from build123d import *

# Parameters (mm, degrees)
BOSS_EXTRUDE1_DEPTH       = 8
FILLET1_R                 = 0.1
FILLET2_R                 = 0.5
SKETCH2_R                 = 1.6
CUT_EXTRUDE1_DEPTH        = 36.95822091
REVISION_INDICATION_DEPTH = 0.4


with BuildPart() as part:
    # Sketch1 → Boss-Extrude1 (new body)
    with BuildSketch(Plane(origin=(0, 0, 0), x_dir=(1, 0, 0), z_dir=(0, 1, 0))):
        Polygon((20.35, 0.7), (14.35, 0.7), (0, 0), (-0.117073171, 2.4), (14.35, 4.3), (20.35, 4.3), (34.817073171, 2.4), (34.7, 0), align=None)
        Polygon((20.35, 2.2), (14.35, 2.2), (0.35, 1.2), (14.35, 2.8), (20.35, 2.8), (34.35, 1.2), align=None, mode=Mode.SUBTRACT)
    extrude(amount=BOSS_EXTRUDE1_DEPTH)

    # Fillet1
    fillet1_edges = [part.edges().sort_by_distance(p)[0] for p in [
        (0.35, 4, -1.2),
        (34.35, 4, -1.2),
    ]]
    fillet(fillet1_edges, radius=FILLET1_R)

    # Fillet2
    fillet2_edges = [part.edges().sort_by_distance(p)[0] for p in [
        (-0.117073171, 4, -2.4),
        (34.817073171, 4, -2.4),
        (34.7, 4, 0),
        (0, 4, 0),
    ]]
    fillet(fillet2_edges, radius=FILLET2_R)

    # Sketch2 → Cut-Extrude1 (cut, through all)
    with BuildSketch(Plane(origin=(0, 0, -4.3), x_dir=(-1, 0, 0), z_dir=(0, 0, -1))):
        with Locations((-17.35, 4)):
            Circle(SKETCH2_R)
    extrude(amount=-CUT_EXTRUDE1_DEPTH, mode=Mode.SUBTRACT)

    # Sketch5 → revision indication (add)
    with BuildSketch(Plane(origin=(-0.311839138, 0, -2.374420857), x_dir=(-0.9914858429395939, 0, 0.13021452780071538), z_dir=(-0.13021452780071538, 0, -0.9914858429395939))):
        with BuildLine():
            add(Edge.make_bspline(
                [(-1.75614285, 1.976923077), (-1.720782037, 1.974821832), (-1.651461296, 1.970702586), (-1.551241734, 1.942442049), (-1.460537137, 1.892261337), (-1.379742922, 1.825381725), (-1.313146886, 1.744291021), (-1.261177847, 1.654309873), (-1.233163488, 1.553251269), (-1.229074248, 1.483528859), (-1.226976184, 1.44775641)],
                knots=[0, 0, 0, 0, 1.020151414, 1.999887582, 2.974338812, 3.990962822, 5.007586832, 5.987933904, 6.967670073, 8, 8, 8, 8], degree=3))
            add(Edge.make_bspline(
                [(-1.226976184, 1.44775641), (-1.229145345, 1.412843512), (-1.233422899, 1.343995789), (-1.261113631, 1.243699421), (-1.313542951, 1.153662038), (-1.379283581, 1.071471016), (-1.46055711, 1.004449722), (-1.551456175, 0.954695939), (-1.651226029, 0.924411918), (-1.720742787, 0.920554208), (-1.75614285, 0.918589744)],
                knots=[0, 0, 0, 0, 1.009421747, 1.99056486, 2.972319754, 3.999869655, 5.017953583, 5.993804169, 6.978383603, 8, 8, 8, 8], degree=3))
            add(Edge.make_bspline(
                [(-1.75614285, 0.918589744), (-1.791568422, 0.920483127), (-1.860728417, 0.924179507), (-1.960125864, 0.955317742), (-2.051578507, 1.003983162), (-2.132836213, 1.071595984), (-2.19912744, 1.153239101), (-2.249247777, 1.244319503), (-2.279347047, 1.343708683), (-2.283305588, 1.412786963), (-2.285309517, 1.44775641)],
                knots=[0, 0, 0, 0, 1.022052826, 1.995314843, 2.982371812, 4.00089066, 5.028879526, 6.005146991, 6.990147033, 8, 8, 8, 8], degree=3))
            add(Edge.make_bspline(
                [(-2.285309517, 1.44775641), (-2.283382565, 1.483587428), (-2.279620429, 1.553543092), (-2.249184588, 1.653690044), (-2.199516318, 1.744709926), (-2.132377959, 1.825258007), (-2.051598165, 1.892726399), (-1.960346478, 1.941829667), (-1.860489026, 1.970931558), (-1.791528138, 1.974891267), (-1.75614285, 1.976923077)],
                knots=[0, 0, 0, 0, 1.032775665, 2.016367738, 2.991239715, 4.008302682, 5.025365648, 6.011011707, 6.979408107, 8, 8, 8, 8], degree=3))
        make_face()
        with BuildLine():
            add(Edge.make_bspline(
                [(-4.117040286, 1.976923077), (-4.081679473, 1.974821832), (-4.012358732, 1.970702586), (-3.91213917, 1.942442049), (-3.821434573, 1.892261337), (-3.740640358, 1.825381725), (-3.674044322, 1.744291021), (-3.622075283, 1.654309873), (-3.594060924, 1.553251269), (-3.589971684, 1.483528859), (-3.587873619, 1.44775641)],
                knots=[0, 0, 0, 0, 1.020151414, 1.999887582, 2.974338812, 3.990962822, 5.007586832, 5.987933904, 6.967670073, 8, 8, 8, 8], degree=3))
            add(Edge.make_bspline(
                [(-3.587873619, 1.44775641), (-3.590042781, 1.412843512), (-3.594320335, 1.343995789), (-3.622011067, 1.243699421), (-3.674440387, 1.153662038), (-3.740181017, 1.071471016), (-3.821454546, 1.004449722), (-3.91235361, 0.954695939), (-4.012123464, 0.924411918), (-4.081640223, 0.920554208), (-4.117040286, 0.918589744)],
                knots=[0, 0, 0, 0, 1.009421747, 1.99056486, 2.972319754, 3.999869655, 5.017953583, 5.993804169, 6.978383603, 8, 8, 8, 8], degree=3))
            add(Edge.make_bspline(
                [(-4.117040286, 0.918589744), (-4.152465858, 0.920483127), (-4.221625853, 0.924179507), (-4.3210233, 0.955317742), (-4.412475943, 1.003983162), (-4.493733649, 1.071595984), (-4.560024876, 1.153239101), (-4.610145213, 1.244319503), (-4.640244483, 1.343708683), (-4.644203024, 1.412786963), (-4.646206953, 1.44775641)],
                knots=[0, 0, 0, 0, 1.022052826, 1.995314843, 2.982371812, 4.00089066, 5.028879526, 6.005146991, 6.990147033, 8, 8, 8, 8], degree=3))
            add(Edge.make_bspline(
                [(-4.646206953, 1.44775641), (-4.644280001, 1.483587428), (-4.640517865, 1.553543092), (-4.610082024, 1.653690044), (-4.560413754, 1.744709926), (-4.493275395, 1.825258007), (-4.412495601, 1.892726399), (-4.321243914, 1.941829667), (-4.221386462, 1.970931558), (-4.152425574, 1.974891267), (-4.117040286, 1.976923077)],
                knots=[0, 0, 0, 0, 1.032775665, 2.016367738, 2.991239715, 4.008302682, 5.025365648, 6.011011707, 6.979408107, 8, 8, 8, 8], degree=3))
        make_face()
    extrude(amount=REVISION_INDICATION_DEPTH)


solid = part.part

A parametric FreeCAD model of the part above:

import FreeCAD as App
import Part
import Sketcher


def edges_at(feature, points):
    """Names of the edges that pass closest to the given points."""
    edges = feature.Shape.Edges
    near = lambda p: min(range(len(edges)), key=lambda i: edges[i].distToShape(Part.Vertex(*p))[0])
    return sorted({f"Edge{near(p) + 1}" for p in points})


def add_polygon(sketch, points):
    """Adds a closed chain of lines whose ends are joined by coincident constraints."""
    first, n = sketch.GeometryCount, len(points)
    for a, b in zip(points, points[1:] + points[:1]):
        sketch.addGeometry(Part.LineSegment(App.Vector(*a, 0), App.Vector(*b, 0)), False)
    for i in range(n):
        sketch.addConstraint(Sketcher.Constraint("Coincident", first + i, 2, first + (i + 1) % n, 1))

doc = App.newDocument("Part")
body = doc.addObject("PartDesign::Body", "Body")

# Sketch on XZ plane
sketch1 = body.newObject("Sketcher::SketchObject", "Sketch")
sketch1.AttachmentSupport = (doc.getObject("XZ_Plane"), [""])
sketch1.MapMode = "FlatFace"
add_polygon(sketch1, [(14.35, -0.7), (20.35, -0.7), (34.7, 0), (34.817073, -2.4), (20.35, -4.3), (14.35, -4.3), (-0.117073, -2.4), (0, 0)])  # lines 0-7
add_polygon(sketch1, [(20.35, -2.2), (14.35, -2.2), (0.35, -1.2), (14.35, -2.8), (20.35, -2.8), (34.35, -1.2)])  # lines 8-13
sketch1.addConstraint([
    Sketcher.Constraint("Horizontal", 0),
    Sketcher.Constraint("Horizontal", 4),
    Sketcher.Constraint("Horizontal", 8),
    Sketcher.Constraint("Horizontal", 11),
    Sketcher.Constraint("Coincident", 6, 2, -1, 1),
    Sketcher.Constraint("PointOnObject", 1, 2, -1),
    Sketcher.Constraint("Perpendicular", 1, 2),
    Sketcher.Constraint("Perpendicular", 6, 7),
    Sketcher.Constraint("Horizontal", 2, 2, 5, 2),
    Sketcher.Constraint("Horizontal", 9, 2, 12, 2),
    Sketcher.Constraint("Vertical", 0, 2, 3, 2),
    Sketcher.Constraint("Vertical", 4, 2, 7, 2),
    Sketcher.Constraint("Vertical", 7, 2, 8, 2),
    Sketcher.Constraint("Vertical", 8, 2, 10, 2),
    Sketcher.Constraint("Vertical", 3, 2, 11, 2),
    Sketcher.Constraint("Vertical", 11, 2, 13, 2),
    Sketcher.Constraint("Equal", 3, 5),
    Sketcher.Constraint("Equal", 10, 12),
    Sketcher.Constraint("DistanceX", 0, 1, 0, 2, 6.0),
    Sketcher.Constraint("DistanceX", 9, 2, 7, 2, 14.0),
    Sketcher.Constraint("DistanceY", 8, 2, 9, 2, 1.0),
    Sketcher.Constraint("DistanceY", 0, 2, -1, 1, 0.7),
    Sketcher.Constraint("DistanceX", -1, 1, 1, 2, 34.7),
    Sketcher.Constraint("DistanceY", 2, 2, -1, 1, 2.4),
    Sketcher.Constraint("DistanceY", 3, 2, -1, 1, 4.3),
    Sketcher.Constraint("DistanceY", 8, 2, -1, 1, 2.2),
    Sketcher.Constraint("DistanceY", 10, 2, -1, 1, 2.8),
])
pad1 = body.newObject("PartDesign::Pad", "Pad")
pad1.Profile = sketch1
pad1.Length = 8
pad1.Reversed = True
doc.recompute()

fillet = body.newObject("PartDesign::Fillet", "Fillet")
fillet.Base = (pad1, edges_at(pad1, [(0.35, 4, -1.2), (34.35, 4, -1.2)]))
fillet.Radius = 0.1
doc.recompute()

fillet2 = body.newObject("PartDesign::Fillet", "Fillet001")
fillet2.Base = (fillet, edges_at(fillet, [
    (-0.117, 4, -2.4),
    (34.817, 4, -2.4),
    (34.7, 4, 0),
    (0, 4, 0),
]))
fillet2.Radius = 0.5

# Sketch on XY plane
sketch2 = body.newObject("Sketcher::SketchObject", "Sketch001")
sketch2.AttachmentSupport = (doc.getObject("XY_Plane"), [""])
sketch2.MapMode = "FlatFace"
sketch2.AttachmentOffset = App.Placement(App.Vector(0, 0, -4.3), App.Rotation())
sketch2.addGeometry(Part.Circle(App.Vector(17.35, 4, 0), App.Vector(0, 0, 1), 1.6), False)
sketch2.addConstraint([
    Sketcher.Constraint("Diameter", 0, 3.2),
    Sketcher.Constraint("DistanceY", -1, 1, 0, 3, 4.0),
    Sketcher.Constraint("DistanceX", -1, 1, 0, 3, 17.35),
])
pocket1 = body.newObject("PartDesign::Pocket", "Pocket")
pocket1.Profile = sketch2
pocket1.Type = "ThroughAll"
pocket1.Reversed = True

# Sketch on an angled plane
sketch3 = body.newObject("Sketcher::SketchObject", "Sketch002")
sketch3.Placement = App.Placement(App.Vector(-0.311839, 0, -2.374421), App.Rotation(App.Vector(-0.991485843, 0, 0.130214528), App.Vector(0, 1, 0), App.Vector(-0.130214528, 0, -0.991485843), "ZXY"))
sketch3.addGeometry([
    Part.BSplineCurve([App.Vector(-1.756143, 1.976923, 0), App.Vector(-1.720782, 1.974822, 0), App.Vector(-1.651461, 1.970703, 0), App.Vector(-1.551242, 1.942442, 0), App.Vector(-1.460537, 1.892261, 0), App.Vector(-1.379743, 1.825382, 0), App.Vector(-1.313147, 1.744291, 0), App.Vector(-1.261178, 1.65431, 0), App.Vector(-1.233163, 1.553251, 0), App.Vector(-1.229074, 1.483529, 0), App.Vector(-1.226976, 1.447756, 0)], [4, 1, 1, 1, 1, 1, 1, 1, 4], [0, 1.020151414, 1.999887582, 2.974338812, 3.990962822, 5.007586832, 5.987933904, 6.967670073, 8], False, 3, [1, 1, 1, 1, 1, 1, 1, 1, 1, 1, 1], False),  # 0
    Part.BSplineCurve([App.Vector(-2.28531, 1.447756, 0), App.Vector(-2.283383, 1.483587, 0), App.Vector(-2.27962, 1.553543, 0), App.Vector(-2.249185, 1.65369, 0), App.Vector(-2.199516, 1.74471, 0), App.Vector(-2.132378, 1.825258, 0), App.Vector(-2.051598, 1.892726, 0), App.Vector(-1.960346, 1.94183, 0), App.Vector(-1.860489, 1.970932, 0), App.Vector(-1.791528, 1.974891, 0), App.Vector(-1.756143, 1.976923, 0)], [4, 1, 1, 1, 1, 1, 1, 1, 4], [0, 1.032775665, 2.016367738, 2.991239715, 4.008302682, 5.025365648, 6.011011707, 6.979408107, 8], False, 3, [1, 1, 1, 1, 1, 1, 1, 1, 1, 1, 1], False),  # 1
    Part.BSplineCurve([App.Vector(-1.756143, 0.91859, 0), App.Vector(-1.791568, 0.920483, 0), App.Vector(-1.860728, 0.92418, 0), App.Vector(-1.960126, 0.955318, 0), App.Vector(-2.051579, 1.003983, 0), App.Vector(-2.132836, 1.071596, 0), App.Vector(-2.199127, 1.153239, 0), App.Vector(-2.249248, 1.24432, 0), App.Vector(-2.279347, 1.343709, 0), App.Vector(-2.283306, 1.412787, 0), App.Vector(-2.28531, 1.447756, 0)], [4, 1, 1, 1, 1, 1, 1, 1, 4], [0, 1.022052826, 1.995314843, 2.982371812, 4.00089066, 5.028879526, 6.005146991, 6.990147033, 8], False, 3, [1, 1, 1, 1, 1, 1, 1, 1, 1, 1, 1], False),  # 2
    Part.BSplineCurve([App.Vector(-1.226976, 1.447756, 0), App.Vector(-1.229145, 1.412844, 0), App.Vector(-1.233423, 1.343996, 0), App.Vector(-1.261114, 1.243699, 0), App.Vector(-1.313543, 1.153662, 0), App.Vector(-1.379284, 1.071471, 0), App.Vector(-1.460557, 1.00445, 0), App.Vector(-1.551456, 0.954696, 0), App.Vector(-1.651226, 0.924412, 0), App.Vector(-1.720743, 0.920554, 0), App.Vector(-1.756143, 0.91859, 0)], [4, 1, 1, 1, 1, 1, 1, 1, 4], [0, 1.009421747, 1.99056486, 2.972319754, 3.999869655, 5.017953583, 5.993804169, 6.978383603, 8], False, 3, [1, 1, 1, 1, 1, 1, 1, 1, 1, 1, 1], False),  # 3
    Part.BSplineCurve([App.Vector(-4.11704, 1.976923, 0), App.Vector(-4.081679, 1.974822, 0), App.Vector(-4.012359, 1.970703, 0), App.Vector(-3.912139, 1.942442, 0), App.Vector(-3.821435, 1.892261, 0), App.Vector(-3.74064, 1.825382, 0), App.Vector(-3.674044, 1.744291, 0), App.Vector(-3.622075, 1.65431, 0), App.Vector(-3.594061, 1.553251, 0), App.Vector(-3.589972, 1.483529, 0), App.Vector(-3.587874, 1.447756, 0)], [4, 1, 1, 1, 1, 1, 1, 1, 4], [0, 1.020151414, 1.999887582, 2.974338812, 3.990962822, 5.007586832, 5.987933904, 6.967670073, 8], False, 3, [1, 1, 1, 1, 1, 1, 1, 1, 1, 1, 1], False),  # 4
    Part.BSplineCurve([App.Vector(-4.646207, 1.447756, 0), App.Vector(-4.64428, 1.483587, 0), App.Vector(-4.640518, 1.553543, 0), App.Vector(-4.610082, 1.65369, 0), App.Vector(-4.560414, 1.74471, 0), App.Vector(-4.493275, 1.825258, 0), App.Vector(-4.412496, 1.892726, 0), App.Vector(-4.321244, 1.94183, 0), App.Vector(-4.221386, 1.970932, 0), App.Vector(-4.152426, 1.974891, 0), App.Vector(-4.11704, 1.976923, 0)], [4, 1, 1, 1, 1, 1, 1, 1, 4], [0, 1.032775665, 2.016367738, 2.991239715, 4.008302682, 5.025365648, 6.011011707, 6.979408107, 8], False, 3, [1, 1, 1, 1, 1, 1, 1, 1, 1, 1, 1], False),  # 5
    Part.BSplineCurve([App.Vector(-4.11704, 0.91859, 0), App.Vector(-4.152466, 0.920483, 0), App.Vector(-4.221626, 0.92418, 0), App.Vector(-4.321023, 0.955318, 0), App.Vector(-4.412476, 1.003983, 0), App.Vector(-4.493734, 1.071596, 0), App.Vector(-4.560025, 1.153239, 0), App.Vector(-4.610145, 1.24432, 0), App.Vector(-4.640244, 1.343709, 0), App.Vector(-4.644203, 1.412787, 0), App.Vector(-4.646207, 1.447756, 0)], [4, 1, 1, 1, 1, 1, 1, 1, 4], [0, 1.022052826, 1.995314843, 2.982371812, 4.00089066, 5.028879526, 6.005146991, 6.990147033, 8], False, 3, [1, 1, 1, 1, 1, 1, 1, 1, 1, 1, 1], False),  # 6
    Part.BSplineCurve([App.Vector(-3.587874, 1.447756, 0), App.Vector(-3.590043, 1.412844, 0), App.Vector(-3.59432, 1.343996, 0), App.Vector(-3.622011, 1.243699, 0), App.Vector(-3.67444, 1.153662, 0), App.Vector(-3.740181, 1.071471, 0), App.Vector(-3.821455, 1.00445, 0), App.Vector(-3.912354, 0.954696, 0), App.Vector(-4.012123, 0.924412, 0), App.Vector(-4.08164, 0.920554, 0), App.Vector(-4.11704, 0.91859, 0)], [4, 1, 1, 1, 1, 1, 1, 1, 4], [0, 1.009421747, 1.99056486, 2.972319754, 3.999869655, 5.017953583, 5.993804169, 6.978383603, 8], False, 3, [1, 1, 1, 1, 1, 1, 1, 1, 1, 1, 1], False),  # 7
], False)
sketch3.addConstraint([
    Sketcher.Constraint("Block", 0),
    Sketcher.Constraint("Block", 1),
    Sketcher.Constraint("Block", 2),
    Sketcher.Constraint("Block", 3),
    Sketcher.Constraint("Block", 4),
    Sketcher.Constraint("Block", 5),
    Sketcher.Constraint("Block", 6),
    Sketcher.Constraint("Block", 7),
])
pad2 = body.newObject("PartDesign::Pad", "Pad001")
pad2.Profile = sketch3
pad2.Length = 0.4

doc.recompute()
